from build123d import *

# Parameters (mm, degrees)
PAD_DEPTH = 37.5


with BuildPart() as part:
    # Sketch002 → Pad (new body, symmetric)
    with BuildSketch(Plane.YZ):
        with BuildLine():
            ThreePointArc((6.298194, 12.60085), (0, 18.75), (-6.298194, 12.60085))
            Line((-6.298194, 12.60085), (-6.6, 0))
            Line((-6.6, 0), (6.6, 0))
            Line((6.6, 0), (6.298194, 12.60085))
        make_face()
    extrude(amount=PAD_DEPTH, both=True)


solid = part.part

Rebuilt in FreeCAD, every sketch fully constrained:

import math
import FreeCAD as App
import Part
import Sketcher

doc = App.newDocument("Part")
body = doc.addObject("PartDesign::Body", "Body")

# Sketch on YZ plane
sketch1 = doc.addObject("Sketcher::SketchObject", "Sketch")
body.addObject(sketch1)
sketch1.AttachmentSupport = (doc.YZ_Plane, [""])
sketch1.MapMode = "FlatFace"
sketch1.addGeometry(Part.ArcOfCircle(Part.Circle(App.Vector(0, 12, 0), App.Vector(0, 0, 1), 6), math.radians(1), math.radians(179)), False)
sketch1.addGeometry(Part.LineSegment(App.Vector(-6, 13, 0), App.Vector(-7, 0, 0)), False)
sketch1.addGeometry(Part.LineSegment(App.Vector(-7, 0, 0), App.Vector(7, 0, 0)), False)
sketch1.addGeometry(Part.LineSegment(App.Vector(7, 0, 0), App.Vector(6, 13, 0)), False)
sketch1.addConstraint(Sketcher.Constraint("Tangent", 0, 2, 1, 1))
sketch1.addConstraint(Sketcher.Constraint("Coincident", 1, 2, 2, 1))
sketch1.addConstraint(Sketcher.Constraint("Coincident", 2, 2, 3, 1))
sketch1.addConstraint(Sketcher.Constraint("Tangent", 3, 2, 0, 1))
sketch1.addConstraint(Sketcher.Constraint("Horizontal", 2))
sketch1.addConstraint(Sketcher.Constraint("Symmetric", 1, 2, 2, 2, -1, 1))
sketch1.addConstraint(Sketcher.Constraint("PointOnObject", 0, 3, -2))
sketch1.addConstraint(Sketcher.Constraint("Radius", 0, 6.3))
sketch1.addConstraint(Sketcher.Constraint("DistanceX", 2, 1, 2, 2, 13.2))
sketch1.addConstraint(Sketcher.Constraint("DistanceY", -1, 1, 0, 3, 12.45))
pad1 = doc.addObject("PartDesign::Pad", "Pad")
body.addObject(pad1)
pad1.Profile = sketch1
pad1.Length = 75
pad1.Midplane = True

doc.recompute()
